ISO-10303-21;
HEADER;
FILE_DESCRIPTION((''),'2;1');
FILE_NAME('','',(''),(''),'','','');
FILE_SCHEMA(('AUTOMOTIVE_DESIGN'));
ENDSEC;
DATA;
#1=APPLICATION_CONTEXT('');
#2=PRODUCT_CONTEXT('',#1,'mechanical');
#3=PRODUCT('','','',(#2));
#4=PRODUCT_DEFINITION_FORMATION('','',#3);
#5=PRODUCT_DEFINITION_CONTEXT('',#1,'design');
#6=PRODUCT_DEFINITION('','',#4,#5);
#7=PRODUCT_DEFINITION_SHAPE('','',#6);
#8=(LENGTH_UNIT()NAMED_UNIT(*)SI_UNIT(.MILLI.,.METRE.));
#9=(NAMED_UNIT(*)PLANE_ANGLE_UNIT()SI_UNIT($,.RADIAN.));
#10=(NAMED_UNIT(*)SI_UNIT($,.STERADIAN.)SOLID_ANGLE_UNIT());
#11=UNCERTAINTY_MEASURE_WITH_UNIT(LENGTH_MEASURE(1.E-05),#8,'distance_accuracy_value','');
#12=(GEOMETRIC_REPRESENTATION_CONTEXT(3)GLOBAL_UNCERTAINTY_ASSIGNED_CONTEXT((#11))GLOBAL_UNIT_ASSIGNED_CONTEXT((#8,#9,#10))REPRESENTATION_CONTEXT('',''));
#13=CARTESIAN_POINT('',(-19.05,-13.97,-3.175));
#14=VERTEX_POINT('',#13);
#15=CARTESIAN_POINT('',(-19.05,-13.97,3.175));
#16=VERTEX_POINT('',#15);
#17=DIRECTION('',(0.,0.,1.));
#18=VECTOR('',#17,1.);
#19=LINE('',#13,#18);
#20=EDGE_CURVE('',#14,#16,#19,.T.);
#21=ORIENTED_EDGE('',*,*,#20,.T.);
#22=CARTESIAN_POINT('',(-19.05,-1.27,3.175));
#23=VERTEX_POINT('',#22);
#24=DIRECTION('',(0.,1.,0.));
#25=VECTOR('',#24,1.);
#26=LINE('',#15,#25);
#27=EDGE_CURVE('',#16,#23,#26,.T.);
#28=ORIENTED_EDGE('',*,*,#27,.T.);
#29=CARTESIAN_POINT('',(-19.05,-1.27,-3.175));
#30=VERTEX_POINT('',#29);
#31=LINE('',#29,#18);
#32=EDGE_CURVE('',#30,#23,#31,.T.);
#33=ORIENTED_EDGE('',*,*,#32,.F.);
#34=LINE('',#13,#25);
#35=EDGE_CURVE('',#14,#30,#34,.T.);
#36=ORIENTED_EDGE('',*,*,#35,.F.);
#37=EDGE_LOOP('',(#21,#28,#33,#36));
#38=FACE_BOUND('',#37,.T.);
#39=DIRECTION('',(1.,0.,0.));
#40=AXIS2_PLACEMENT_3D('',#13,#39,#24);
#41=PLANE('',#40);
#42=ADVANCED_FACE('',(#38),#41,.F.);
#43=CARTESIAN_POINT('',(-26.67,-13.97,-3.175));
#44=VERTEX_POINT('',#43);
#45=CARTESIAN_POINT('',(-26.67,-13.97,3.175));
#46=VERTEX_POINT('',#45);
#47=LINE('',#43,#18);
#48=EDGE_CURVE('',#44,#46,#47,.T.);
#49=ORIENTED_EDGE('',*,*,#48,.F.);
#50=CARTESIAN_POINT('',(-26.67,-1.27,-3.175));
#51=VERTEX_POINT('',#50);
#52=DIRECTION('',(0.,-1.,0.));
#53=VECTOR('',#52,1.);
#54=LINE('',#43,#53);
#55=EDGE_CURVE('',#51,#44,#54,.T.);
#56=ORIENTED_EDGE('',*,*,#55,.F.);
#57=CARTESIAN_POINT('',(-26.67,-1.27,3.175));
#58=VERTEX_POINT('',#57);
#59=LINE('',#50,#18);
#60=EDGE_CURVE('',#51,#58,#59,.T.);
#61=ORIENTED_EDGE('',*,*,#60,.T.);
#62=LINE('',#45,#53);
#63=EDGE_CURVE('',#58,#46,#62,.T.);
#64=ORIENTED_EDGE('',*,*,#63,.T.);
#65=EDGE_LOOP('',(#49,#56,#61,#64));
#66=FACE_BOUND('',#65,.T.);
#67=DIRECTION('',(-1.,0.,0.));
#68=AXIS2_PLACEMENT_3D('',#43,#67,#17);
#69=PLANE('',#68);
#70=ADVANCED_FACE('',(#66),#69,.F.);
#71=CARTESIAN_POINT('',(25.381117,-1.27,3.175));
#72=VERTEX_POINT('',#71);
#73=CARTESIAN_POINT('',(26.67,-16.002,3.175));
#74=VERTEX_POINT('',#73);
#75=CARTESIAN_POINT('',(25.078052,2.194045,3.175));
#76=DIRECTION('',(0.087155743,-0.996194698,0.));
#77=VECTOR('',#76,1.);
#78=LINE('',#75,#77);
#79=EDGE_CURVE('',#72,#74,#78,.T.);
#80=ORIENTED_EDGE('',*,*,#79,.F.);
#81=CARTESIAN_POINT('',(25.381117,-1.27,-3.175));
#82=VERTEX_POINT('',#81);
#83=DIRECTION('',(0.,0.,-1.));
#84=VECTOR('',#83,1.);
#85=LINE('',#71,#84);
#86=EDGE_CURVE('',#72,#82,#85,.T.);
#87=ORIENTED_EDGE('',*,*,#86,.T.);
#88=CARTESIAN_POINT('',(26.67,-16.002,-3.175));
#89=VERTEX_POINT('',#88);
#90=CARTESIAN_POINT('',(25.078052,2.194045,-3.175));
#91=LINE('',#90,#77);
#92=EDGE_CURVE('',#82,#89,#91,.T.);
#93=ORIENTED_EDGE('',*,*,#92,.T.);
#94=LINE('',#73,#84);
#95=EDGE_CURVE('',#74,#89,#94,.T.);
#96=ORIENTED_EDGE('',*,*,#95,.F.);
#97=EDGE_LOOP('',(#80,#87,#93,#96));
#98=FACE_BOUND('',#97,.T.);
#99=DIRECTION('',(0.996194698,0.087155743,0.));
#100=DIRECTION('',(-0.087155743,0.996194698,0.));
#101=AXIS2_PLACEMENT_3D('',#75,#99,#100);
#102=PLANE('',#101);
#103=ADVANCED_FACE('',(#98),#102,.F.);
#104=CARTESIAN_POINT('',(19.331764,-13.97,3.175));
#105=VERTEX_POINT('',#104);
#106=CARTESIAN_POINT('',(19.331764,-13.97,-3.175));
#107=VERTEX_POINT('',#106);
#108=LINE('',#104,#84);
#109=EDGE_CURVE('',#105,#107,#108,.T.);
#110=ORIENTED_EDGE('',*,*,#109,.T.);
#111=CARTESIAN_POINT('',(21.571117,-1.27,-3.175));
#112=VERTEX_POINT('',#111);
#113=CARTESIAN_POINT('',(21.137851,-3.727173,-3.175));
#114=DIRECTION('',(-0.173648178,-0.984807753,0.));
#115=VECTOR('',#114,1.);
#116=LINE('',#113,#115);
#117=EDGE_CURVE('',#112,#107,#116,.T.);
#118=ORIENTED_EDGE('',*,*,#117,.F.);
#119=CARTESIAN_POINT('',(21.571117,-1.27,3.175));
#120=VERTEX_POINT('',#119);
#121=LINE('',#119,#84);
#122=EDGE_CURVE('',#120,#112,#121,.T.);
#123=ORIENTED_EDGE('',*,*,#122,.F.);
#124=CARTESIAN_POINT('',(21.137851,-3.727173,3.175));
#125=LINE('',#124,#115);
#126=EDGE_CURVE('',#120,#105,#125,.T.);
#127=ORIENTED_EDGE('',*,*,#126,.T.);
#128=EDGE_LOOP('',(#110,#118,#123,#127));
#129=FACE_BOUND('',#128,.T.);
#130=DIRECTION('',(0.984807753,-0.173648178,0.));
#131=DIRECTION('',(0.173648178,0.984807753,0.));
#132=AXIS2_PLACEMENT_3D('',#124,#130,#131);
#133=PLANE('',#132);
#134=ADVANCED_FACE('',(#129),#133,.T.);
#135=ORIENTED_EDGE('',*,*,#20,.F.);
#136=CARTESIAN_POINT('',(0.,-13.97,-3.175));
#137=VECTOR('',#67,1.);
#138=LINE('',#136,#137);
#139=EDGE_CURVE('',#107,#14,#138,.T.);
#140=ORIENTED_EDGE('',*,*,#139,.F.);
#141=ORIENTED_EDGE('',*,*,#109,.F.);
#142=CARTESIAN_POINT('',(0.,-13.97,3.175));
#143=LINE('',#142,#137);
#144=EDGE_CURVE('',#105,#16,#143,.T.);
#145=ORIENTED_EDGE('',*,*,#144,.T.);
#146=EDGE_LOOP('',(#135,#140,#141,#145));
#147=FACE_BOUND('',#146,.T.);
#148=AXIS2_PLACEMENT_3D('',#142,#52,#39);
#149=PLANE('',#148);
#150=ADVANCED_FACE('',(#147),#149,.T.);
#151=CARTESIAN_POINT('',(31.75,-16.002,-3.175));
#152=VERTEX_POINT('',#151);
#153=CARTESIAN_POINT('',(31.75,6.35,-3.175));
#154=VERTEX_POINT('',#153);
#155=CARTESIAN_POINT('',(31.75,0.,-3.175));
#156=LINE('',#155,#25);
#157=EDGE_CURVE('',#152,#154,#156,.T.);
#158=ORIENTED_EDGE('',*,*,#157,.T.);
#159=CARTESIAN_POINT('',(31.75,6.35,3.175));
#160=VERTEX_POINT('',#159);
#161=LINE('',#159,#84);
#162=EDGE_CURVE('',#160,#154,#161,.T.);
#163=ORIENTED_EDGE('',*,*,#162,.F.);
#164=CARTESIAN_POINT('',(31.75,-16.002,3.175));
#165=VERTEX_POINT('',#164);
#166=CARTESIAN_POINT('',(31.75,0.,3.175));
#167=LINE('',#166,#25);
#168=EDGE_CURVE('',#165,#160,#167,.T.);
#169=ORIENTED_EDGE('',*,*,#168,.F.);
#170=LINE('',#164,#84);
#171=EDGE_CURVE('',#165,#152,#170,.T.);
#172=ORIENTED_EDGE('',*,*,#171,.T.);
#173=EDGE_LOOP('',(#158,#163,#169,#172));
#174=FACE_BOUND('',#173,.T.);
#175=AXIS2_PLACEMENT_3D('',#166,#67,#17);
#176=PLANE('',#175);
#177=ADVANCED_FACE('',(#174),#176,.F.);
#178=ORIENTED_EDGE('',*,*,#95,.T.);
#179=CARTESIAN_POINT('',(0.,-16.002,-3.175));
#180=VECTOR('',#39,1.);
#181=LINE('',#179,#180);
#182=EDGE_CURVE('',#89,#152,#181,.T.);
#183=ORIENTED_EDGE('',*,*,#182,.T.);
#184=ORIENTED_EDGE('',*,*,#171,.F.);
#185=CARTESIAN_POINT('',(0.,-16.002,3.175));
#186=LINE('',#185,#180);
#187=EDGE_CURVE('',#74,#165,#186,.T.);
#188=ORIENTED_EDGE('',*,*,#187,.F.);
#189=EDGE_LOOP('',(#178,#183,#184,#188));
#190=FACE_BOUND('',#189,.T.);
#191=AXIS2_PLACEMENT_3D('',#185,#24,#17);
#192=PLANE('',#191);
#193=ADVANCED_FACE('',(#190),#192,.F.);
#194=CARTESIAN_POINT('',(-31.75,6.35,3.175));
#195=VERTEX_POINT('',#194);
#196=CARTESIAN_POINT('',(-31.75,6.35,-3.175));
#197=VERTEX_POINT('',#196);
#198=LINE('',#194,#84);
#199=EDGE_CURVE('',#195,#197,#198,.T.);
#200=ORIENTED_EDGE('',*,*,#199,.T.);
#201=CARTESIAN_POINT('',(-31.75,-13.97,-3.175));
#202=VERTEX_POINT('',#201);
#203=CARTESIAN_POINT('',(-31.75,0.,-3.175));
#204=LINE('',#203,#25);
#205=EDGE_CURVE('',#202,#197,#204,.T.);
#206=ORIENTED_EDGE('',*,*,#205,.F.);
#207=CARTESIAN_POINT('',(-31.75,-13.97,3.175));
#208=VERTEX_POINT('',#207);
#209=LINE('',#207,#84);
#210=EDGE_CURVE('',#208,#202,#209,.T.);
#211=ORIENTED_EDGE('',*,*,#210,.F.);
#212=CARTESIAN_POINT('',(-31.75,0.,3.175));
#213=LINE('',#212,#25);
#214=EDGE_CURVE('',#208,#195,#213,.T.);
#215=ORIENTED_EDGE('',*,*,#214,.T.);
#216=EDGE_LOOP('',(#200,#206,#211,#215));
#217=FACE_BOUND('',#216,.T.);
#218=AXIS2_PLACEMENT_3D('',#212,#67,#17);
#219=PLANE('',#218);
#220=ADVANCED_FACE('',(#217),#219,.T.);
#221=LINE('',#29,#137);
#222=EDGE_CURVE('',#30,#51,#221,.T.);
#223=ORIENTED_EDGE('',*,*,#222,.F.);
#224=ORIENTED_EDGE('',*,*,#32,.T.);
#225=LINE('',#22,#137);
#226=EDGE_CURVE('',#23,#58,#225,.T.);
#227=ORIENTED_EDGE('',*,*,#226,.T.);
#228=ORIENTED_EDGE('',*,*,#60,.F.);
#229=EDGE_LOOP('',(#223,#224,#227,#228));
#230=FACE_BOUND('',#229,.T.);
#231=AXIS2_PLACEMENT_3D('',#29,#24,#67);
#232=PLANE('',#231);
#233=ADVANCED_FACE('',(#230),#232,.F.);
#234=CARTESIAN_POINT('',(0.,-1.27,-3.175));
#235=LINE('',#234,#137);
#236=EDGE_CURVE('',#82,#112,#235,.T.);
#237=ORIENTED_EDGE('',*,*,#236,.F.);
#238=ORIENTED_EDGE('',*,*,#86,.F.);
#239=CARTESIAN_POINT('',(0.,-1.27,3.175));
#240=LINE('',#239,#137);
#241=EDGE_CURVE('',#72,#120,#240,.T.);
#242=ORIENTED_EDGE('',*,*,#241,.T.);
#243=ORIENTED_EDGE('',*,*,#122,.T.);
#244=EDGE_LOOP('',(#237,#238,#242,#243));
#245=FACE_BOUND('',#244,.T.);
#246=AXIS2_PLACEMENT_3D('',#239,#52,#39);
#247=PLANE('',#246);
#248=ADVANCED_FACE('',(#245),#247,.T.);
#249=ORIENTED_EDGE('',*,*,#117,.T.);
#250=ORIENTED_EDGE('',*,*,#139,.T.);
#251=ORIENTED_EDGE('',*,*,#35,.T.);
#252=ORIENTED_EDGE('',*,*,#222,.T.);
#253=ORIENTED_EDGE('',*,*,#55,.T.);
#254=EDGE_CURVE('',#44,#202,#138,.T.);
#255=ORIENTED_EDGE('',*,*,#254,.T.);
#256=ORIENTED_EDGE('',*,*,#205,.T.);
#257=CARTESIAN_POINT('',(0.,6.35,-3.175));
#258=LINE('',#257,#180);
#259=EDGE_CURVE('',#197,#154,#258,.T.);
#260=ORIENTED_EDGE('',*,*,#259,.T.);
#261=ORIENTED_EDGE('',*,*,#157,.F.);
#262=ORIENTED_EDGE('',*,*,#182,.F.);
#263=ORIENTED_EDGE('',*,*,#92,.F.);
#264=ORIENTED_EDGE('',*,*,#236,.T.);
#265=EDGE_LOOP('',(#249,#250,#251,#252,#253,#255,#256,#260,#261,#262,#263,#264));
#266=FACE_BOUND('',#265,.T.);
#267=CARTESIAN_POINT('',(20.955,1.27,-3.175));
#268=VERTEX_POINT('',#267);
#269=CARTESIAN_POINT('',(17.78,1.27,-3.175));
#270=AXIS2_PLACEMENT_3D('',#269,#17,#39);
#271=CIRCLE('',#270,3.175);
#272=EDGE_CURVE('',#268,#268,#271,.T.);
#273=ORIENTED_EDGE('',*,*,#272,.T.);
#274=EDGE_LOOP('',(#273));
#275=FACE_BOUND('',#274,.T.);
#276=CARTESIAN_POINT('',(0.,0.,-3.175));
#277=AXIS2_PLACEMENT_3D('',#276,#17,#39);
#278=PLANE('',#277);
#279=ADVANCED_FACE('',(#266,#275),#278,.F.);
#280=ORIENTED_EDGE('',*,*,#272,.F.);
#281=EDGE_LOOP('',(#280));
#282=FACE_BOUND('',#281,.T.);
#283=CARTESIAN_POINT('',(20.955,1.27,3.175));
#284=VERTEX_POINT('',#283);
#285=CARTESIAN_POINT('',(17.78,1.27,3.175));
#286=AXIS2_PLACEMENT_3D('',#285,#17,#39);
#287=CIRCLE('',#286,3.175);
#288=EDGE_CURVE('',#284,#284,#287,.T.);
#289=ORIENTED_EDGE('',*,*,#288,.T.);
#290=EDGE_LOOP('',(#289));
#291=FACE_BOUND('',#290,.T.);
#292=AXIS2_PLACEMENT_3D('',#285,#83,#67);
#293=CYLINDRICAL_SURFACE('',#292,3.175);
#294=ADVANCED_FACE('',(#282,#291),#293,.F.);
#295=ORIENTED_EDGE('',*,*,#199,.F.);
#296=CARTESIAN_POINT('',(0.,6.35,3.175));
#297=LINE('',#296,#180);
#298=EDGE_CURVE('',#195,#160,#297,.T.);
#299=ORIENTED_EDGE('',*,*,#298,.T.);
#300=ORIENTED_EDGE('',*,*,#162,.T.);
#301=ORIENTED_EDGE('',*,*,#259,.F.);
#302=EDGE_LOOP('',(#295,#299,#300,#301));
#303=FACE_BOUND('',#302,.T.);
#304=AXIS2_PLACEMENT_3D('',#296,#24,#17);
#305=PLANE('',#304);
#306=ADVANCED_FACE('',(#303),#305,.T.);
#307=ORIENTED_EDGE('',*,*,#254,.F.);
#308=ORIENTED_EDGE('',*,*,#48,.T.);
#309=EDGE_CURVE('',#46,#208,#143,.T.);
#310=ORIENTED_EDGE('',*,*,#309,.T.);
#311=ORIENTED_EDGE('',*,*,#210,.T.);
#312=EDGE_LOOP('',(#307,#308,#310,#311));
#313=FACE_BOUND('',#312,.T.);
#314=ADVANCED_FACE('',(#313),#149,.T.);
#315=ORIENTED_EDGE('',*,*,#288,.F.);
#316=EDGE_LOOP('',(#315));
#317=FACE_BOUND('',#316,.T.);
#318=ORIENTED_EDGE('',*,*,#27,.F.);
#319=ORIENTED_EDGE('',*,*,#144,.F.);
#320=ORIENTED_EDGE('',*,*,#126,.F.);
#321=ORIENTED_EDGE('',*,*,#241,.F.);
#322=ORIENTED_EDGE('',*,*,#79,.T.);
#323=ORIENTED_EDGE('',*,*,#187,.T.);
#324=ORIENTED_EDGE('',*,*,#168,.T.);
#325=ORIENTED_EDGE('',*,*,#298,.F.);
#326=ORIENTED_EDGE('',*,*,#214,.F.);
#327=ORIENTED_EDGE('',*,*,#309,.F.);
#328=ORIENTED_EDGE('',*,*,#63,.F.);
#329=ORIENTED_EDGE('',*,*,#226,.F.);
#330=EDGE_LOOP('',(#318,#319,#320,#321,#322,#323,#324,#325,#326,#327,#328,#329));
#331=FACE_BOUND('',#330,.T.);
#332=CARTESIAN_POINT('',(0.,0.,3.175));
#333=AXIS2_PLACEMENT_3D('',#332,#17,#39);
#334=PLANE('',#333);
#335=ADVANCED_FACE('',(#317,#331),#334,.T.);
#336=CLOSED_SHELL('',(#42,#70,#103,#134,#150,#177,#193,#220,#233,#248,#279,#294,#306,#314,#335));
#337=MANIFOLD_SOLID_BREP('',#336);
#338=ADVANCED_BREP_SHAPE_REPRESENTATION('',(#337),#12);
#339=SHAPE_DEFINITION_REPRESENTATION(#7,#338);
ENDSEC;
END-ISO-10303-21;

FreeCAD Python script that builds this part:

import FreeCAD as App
import Part
import Sketcher

V = App.Vector
Q = App.Units.Quantity


def add_polygon(sketch, points):
    """Adds a closed chain of lines whose ends are joined by coincident constraints."""
    first, n = sketch.GeometryCount, len(points)
    for a, b in zip(points, points[1:] + points[:1]):
        sketch.addGeometry(Part.LineSegment(App.Vector(*a, 0), App.Vector(*b, 0)), False)
    for i in range(n):
        sketch.addConstraint(Sketcher.Constraint("Coincident", first + i, 2, first + (i + 1) % n, 1))

doc = App.newDocument("Part")
body = doc.addObject("PartDesign::Body", "Body")

# Sketch on XY plane
sketch1 = body.newObject("Sketcher::SketchObject", "Sketch")
sketch1.AttachmentSupport = (doc.getObject("XY_Plane"), [""])
sketch1.MapMode = "FlatFace"
add_polygon(sketch1, [(21.571117, -1.27), (25.381117, -1.27), (25.825559, -6.35), (26.67, -16.002), (31.75, -16.002), (31.75, 6.35), (-31.75, 6.35), (-31.75, -13.97), (19.331764, -13.97)])  # lines 0-8
sketch1.addGeometry(Part.Circle(V(17.78, 1.27, 0), V(0, 0, 1), 3.175), False)  # 9
sketch1.addConstraint([
    Sketcher.Constraint("Horizontal", 0),
    Sketcher.Constraint("Horizontal", 3),
    Sketcher.Constraint("Vertical", 4),
    Sketcher.Constraint("Horizontal", 5),
    Sketcher.Constraint("Vertical", 6),
    Sketcher.Constraint("Horizontal", 7),
    Sketcher.Constraint("Parallel", 1, 2),
    Sketcher.Constraint("Diameter", 9, Q("0.25 in")),
    Sketcher.Constraint("DistanceX", 3, 1, 3, 2, Q("0.2 in")),
    Sketcher.Constraint("DistanceX", 5, 2, 5, 1, Q("2.5 in")),
    Sketcher.Constraint("DistanceY", 6, 2, 6, 1, Q("0.8 in")),
    Sketcher.Constraint("Angle", 1, Q("-85 deg")),
    Sketcher.Constraint("Angle", 8, Q("80 deg")),
    Sketcher.Constraint("DistanceX", 0, 1, 0, 2, Q("0.15 in")),
    Sketcher.Constraint("DistanceY", 4, 1, 4, 2, Q("0.88 in")),
    Sketcher.Constraint("DistanceX", -1, 1, 9, 3, Q("0.7 in")),
    Sketcher.Constraint("DistanceY", 0, 2, 9, 3, Q("0.1 in")),
    Sketcher.Constraint("DistanceY", 1, 2, 0, 2, Q("0.2 in")),
    Sketcher.Constraint("DistanceY", 0, 2, 4, 2, Q("0.3 in")),
    Sketcher.Constraint("DistanceY", -1, 1, 9, 3, Q("0.05 in")),
    Sketcher.Constraint("DistanceX", -1, 1, 2, 2, Q("1.05 in")),
])
pad1 = body.newObject("PartDesign::Pad", "Pad")
pad1.Profile = sketch1
pad1.Length = Q("0.25 in")
pad1.Midplane = True

# Sketch on XY plane
sketch2 = body.newObject("Sketcher::SketchObject", "Sketch001")
sketch2.AttachmentSupport = (doc.getObject("XY_Plane"), [""])
sketch2.MapMode = "FlatFace"
sketch2.AttachmentOffset = App.Placement(V(0, 0, 0.125 * 25.4), App.Rotation())
add_polygon(sketch2, [(-26.67, -1.27), (-26.67, -13.97), (-19.05, -13.97), (-19.05, -1.27)])  # lines 0-3
sketch2.addConstraint([
    Sketcher.Constraint("Vertical", 0),
    Sketcher.Constraint("Horizontal", 1),
    Sketcher.Constraint("Vertical", 2),
    Sketcher.Constraint("Horizontal", 3),
    Sketcher.Constraint("DistanceX", 1, 1, 1, 2, Q("0.3 in")),
    Sketcher.Constraint("DistanceY", 0, 2, 0, 1, Q("0.5 in")),
    Sketcher.Constraint("DistanceX", 0, 2, -1, 1, Q("1.05 in")),
    Sketcher.Constraint("DistanceY", 0, 2, -1, 1, Q("0.55 in")),
])
pocket1 = body.newObject("PartDesign::Pocket", "Pocket")
pocket1.Profile = sketch2
pocket1.Type = "ThroughAll"

doc.recompute()
